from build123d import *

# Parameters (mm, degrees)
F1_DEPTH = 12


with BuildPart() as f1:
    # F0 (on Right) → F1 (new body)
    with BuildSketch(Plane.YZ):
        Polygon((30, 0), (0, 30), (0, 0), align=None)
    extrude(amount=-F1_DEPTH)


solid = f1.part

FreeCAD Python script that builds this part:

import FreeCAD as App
import Part
import Sketcher

V = App.Vector


def add_polygon(sketch, points):
    """Adds a closed chain of lines whose ends are joined by coincident constraints."""
    first, n = sketch.GeometryCount, len(points)
    for a, b in zip(points, points[1:] + points[:1]):
        sketch.addGeometry(Part.LineSegment(App.Vector(*a, 0), App.Vector(*b, 0)), False)
    for i in range(n):
        sketch.addConstraint(Sketcher.Constraint("Coincident", first + i, 2, first + (i + 1) % n, 1))

doc = App.newDocument("Part")
body = doc.addObject("PartDesign::Body", "Body")

# Sketch on YZ plane
sketch1 = body.newObject("Sketcher::SketchObject", "Sketch")
sketch1.AttachmentSupport = (doc.getObject("YZ_Plane"), [""])
sketch1.MapMode = "FlatFace"
add_polygon(sketch1, [(30, 0), (0, 30), (0, 0)])  # lines 0-2
sketch1.addConstraint([
    Sketcher.Constraint("Vertical", 1),
    Sketcher.Constraint("Horizontal", 2),
    Sketcher.Constraint("Coincident", 1, 2, -1, 1),
    Sketcher.Constraint("Equal", 2, 1),
    Sketcher.Constraint("DistanceX", 2, 1, 2, 2, 30.0),
])
pad1 = body.newObject("PartDesign::Pad", "Pad")
pad1.Profile = sketch1
pad1.Length = 12
pad1.Reversed = True

doc.recompute()
